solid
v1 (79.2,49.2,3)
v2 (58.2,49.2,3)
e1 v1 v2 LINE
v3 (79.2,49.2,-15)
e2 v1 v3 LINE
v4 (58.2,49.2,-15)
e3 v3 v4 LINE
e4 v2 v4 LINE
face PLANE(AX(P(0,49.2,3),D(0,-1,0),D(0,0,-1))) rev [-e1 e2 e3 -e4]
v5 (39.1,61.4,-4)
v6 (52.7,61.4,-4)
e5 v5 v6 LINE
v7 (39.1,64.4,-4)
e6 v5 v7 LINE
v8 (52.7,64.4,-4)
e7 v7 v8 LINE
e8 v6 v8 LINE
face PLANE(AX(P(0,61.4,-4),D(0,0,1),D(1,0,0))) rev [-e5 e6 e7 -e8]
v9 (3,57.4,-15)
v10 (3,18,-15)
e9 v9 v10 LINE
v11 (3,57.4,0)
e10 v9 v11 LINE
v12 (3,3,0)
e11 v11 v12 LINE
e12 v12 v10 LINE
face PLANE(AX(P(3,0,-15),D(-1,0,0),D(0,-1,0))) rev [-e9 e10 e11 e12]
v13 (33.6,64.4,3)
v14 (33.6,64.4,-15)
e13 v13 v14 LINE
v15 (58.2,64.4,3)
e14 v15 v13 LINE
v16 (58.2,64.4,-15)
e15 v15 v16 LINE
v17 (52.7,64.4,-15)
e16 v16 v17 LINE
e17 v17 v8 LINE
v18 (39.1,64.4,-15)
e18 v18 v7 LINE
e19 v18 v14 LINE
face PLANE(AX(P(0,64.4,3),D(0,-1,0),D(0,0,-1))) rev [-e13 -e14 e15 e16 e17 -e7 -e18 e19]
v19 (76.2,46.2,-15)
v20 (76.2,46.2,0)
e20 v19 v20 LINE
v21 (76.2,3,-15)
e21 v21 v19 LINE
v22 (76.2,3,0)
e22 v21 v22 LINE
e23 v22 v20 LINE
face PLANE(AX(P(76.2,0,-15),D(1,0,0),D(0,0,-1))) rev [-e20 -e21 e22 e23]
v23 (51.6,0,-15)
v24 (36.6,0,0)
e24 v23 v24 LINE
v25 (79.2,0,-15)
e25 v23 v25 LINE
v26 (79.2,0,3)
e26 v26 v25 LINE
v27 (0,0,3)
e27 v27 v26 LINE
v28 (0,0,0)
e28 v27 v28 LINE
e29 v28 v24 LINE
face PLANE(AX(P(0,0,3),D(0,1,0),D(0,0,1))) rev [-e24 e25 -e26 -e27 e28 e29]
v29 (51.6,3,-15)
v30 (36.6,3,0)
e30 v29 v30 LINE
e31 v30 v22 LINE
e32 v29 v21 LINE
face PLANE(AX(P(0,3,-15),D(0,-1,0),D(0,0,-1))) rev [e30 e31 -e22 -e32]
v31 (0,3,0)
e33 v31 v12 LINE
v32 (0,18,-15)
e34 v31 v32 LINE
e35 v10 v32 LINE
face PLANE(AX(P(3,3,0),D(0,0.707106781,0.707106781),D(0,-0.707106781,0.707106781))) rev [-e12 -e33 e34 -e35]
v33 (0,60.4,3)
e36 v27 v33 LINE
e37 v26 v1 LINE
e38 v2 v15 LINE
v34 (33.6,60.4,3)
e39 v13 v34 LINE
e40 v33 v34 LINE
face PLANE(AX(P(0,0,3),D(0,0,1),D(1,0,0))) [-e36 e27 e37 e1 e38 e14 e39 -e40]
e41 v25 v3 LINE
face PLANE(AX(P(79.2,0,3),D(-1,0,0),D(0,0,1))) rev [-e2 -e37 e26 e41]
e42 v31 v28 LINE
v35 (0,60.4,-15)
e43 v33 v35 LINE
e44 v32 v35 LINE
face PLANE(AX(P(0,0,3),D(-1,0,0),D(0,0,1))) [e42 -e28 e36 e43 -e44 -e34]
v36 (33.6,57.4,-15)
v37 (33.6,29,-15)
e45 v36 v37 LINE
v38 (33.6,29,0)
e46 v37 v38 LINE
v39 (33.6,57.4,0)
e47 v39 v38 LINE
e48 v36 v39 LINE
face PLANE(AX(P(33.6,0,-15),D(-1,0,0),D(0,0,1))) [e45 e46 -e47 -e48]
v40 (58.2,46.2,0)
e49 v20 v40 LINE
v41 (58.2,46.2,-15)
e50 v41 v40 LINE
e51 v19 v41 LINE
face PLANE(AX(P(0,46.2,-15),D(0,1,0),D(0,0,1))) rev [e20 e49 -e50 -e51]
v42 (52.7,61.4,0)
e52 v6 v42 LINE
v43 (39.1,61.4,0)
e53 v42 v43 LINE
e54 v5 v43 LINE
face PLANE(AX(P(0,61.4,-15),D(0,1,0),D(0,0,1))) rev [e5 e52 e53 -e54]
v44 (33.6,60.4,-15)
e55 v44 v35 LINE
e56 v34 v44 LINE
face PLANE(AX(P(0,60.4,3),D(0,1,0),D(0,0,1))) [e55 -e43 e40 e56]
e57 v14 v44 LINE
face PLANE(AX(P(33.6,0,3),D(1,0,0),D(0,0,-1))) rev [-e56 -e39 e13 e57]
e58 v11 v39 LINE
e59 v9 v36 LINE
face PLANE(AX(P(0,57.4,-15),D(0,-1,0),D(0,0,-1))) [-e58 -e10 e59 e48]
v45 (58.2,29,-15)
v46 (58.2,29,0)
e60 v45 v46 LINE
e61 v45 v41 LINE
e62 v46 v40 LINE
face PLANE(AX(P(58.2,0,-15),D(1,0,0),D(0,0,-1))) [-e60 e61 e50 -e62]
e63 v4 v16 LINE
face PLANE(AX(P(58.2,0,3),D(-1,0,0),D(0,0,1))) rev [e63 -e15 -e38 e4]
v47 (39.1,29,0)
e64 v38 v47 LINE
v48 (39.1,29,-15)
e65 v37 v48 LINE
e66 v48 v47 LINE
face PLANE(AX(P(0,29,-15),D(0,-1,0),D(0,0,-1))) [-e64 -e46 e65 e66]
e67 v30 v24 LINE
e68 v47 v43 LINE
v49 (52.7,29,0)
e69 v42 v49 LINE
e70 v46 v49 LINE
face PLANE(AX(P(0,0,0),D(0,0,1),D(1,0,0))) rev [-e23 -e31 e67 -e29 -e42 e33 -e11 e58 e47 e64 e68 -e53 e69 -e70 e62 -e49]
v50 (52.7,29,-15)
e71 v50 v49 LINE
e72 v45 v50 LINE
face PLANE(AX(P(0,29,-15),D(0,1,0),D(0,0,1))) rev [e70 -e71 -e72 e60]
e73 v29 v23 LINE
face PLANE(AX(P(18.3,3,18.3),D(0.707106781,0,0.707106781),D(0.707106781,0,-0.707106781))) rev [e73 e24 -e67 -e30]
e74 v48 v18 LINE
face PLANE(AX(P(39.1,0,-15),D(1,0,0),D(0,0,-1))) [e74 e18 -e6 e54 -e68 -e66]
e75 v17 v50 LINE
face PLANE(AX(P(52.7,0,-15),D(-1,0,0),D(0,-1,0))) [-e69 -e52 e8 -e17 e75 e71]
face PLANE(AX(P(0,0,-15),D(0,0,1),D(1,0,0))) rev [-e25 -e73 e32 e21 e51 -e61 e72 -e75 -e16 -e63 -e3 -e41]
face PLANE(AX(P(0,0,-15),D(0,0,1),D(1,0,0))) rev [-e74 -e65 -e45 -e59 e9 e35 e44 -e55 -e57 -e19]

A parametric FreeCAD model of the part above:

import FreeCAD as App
import Part
import Sketcher

V = App.Vector
Q = App.Units.Quantity


def add_polygon(sketch, points):
    """Adds a closed chain of lines whose ends are joined by coincident constraints."""
    first, n = sketch.GeometryCount, len(points)
    for a, b in zip(points, points[1:] + points[:1]):
        sketch.addGeometry(Part.LineSegment(App.Vector(*a, 0), App.Vector(*b, 0)), False)
    for i in range(n):
        sketch.addConstraint(Sketcher.Constraint("Coincident", first + i, 2, first + (i + 1) % n, 1))

doc = App.newDocument("Part")
params = doc.addObject("Spreadsheet::Sheet", "Params")
for row, (alias, value) in enumerate([
    ("sketch1_width", "21 mm"),
    ("sketch1_height", "4 mm"),
    ("sketch1_width2", "79.2 mm"),
    ("sketch1_width3", "24.6 mm"),
    ("sketch1_height2", "60.4 mm"),
    ("pad1_length", "3 mm"),
    ("sketch2_width", "21 mm"),
    ("sketch2_width2", "18 mm"),
    ("sketch2_height", "4 mm"),
    ("sketch2_width3", "33.6 mm"),
    ("sketch2_width4", "79.2 mm"),
    ("pad2_length", "15 mm"),
    ("sketch3_height", "15 mm"),
    ("sketch3_width", "33.6 mm"),
    ("pocket1_length", "3 mm"),
    ("sketch4_width", "15 mm"),
    ("pocket2_length", "3 mm"),
    ("sketch5_height", "11 mm"),
    ("sketch5_width", "13.6 mm"),
    ("pocket3_length", "3 mm"),
    ("sketch6_width", "18 mm"),
    ("pocket4_length", "3 mm"),
], start=1):
    params.set(f"A{row}", alias)
    params.set(f"B{row}", "=" + value)
    params.setAlias(f"B{row}", alias)

body = doc.addObject("PartDesign::Body", "Body")

# Sketch on XY plane
sketch1 = body.newObject("Sketcher::SketchObject", "Sketch")
sketch1.AttachmentSupport = (doc.getObject("XY_Plane"), [""])
sketch1.MapMode = "FlatFace"
add_polygon(sketch1, [(0, 60.4), (0, 0), (79.2, 0), (79.2, 49.2), (58.2, 49.2), (58.2, 64.4), (33.6, 64.4), (33.6, 60.4)])  # lines 0-7
sketch1.addConstraint([
    Sketcher.Constraint("Vertical", 0),
    Sketcher.Constraint("Horizontal", 1),
    Sketcher.Constraint("Vertical", 2),
    Sketcher.Constraint("Horizontal", 3),
    Sketcher.Constraint("Vertical", 4),
    Sketcher.Constraint("Horizontal", 5),
    Sketcher.Constraint("Vertical", 6),
    Sketcher.Constraint("Horizontal", 7),
    Sketcher.Constraint("Coincident", 0, 2, -1, 1),
    Sketcher.Constraint("DistanceX", 3, 2, 3, 1, 21.0),
    Sketcher.Constraint("DistanceY", 6, 2, 6, 1, 4.0),
    Sketcher.Constraint("DistanceX", 1, 1, 1, 2, 79.2),
    Sketcher.Constraint("DistanceX", 5, 2, 5, 1, 24.6),
    Sketcher.Constraint("DistanceY", 0, 2, 0, 1, 60.4),
    Sketcher.Constraint("DistanceY", 2, 1, 2, 2, 49.2),
])
sketch1.setExpression("Constraints[17]", "Params.sketch1_width")
sketch1.setExpression("Constraints[18]", "Params.sketch1_height")
sketch1.setExpression("Constraints[19]", "Params.sketch1_width2")
sketch1.setExpression("Constraints[20]", "Params.sketch1_width3")
sketch1.setExpression("Constraints[21]", "Params.sketch1_height2")
pad1 = body.newObject("PartDesign::Pad", "Pad")
pad1.Profile = sketch1
pad1.setExpression("Length", "Params.pad1_length")

# Sketch on XY plane
sketch2 = body.newObject("Sketcher::SketchObject", "Sketch001")
sketch2.AttachmentSupport = (doc.getObject("XY_Plane"), [""])
sketch2.MapMode = "FlatFace"
add_polygon(sketch2, [(33.6, 60.4), (0, 60.4), (0, 0), (79.2, 0), (79.2, 49.2), (58.2, 49.2), (58.2, 64.4), (33.6, 64.4)])  # lines 0-7
add_polygon(sketch2, [(3, 3), (3, 57.4), (33.6, 57.4), (33.6, 29), (39.1, 29), (39.1, 61.4), (52.7, 61.4), (52.7, 29), (58.2, 29), (58.2, 46.2), (76.2, 46.2), (76.2, 3)])  # lines 8-19
sketch2.addConstraint([
    Sketcher.Constraint("Horizontal", 0),
    Sketcher.Constraint("Vertical", 1),
    Sketcher.Constraint("Horizontal", 2),
    Sketcher.Constraint("Vertical", 3),
    Sketcher.Constraint("Horizontal", 4),
    Sketcher.Constraint("Vertical", 5),
    Sketcher.Constraint("Horizontal", 6),
    Sketcher.Constraint("Vertical", 7),
    Sketcher.Constraint("Vertical", 8),
    Sketcher.Constraint("Horizontal", 9),
    Sketcher.Constraint("Vertical", 10),
    Sketcher.Constraint("Horizontal", 11),
    Sketcher.Constraint("Vertical", 12),
    Sketcher.Constraint("Horizontal", 13),
    Sketcher.Constraint("Vertical", 14),
    Sketcher.Constraint("Horizontal", 15),
    Sketcher.Constraint("Vertical", 16),
    Sketcher.Constraint("Horizontal", 17),
    Sketcher.Constraint("Vertical", 18),
    Sketcher.Constraint("Horizontal", 19),
    Sketcher.Constraint("Coincident", 1, 2, -1, 1),
    Sketcher.Constraint("Horizontal", 11, 2, 14, 2),
    Sketcher.Constraint("Vertical", 7, 2, 9, 2),
    Sketcher.Constraint("Vertical", 5, 2, 15, 2),
    Sketcher.Constraint("Equal", 11, 15),
    Sketcher.Constraint("DistanceX", 4, 2, 4, 1, 21.0),
    Sketcher.Constraint("DistanceX", 17, 1, 17, 2, 18.0),
    Sketcher.Constraint("DistanceY", 7, 2, 7, 1, 4.0),
    Sketcher.Constraint("DistanceX", 0, 2, 0, 1, 33.6),
    Sketcher.Constraint("DistanceX", 2, 1, 2, 2, 79.2),
    Sketcher.Constraint("DistanceX", 9, 1, 9, 2, 30.6),
    Sketcher.Constraint("DistanceX", 11, 1, 11, 2, 5.5),
    Sketcher.Constraint("DistanceY", 1, 2, 1, 1, 60.4),
    Sketcher.Constraint("DistanceY", 3, 1, 3, 2, 49.2),
    Sketcher.Constraint("DistanceY", 8, 1, 8, 2, 54.4),
    Sketcher.Constraint("DistanceY", 10, 2, 10, 1, 28.4),
    Sketcher.Constraint("DistanceY", 12, 1, 12, 2, 32.4),
    Sketcher.Constraint("DistanceY", 16, 1, 16, 2, 17.2),
    Sketcher.Constraint("DistanceY", -1, 1, 10, 2, 29.0),
])
sketch2.setExpression("Constraints[45]", "Params.sketch2_width")
sketch2.setExpression("Constraints[46]", "Params.sketch2_width2")
sketch2.setExpression("Constraints[47]", "Params.sketch2_height")
sketch2.setExpression("Constraints[48]", "Params.sketch2_width3")
sketch2.setExpression("Constraints[49]", "Params.sketch2_width4")
pad2 = body.newObject("PartDesign::Pad", "Pad001")
pad2.Profile = sketch2
pad2.setExpression("Length", "Params.pad2_length")
pad2.Reversed = True

# Sketch on XZ plane
sketch3 = body.newObject("Sketcher::SketchObject", "Sketch002")
sketch3.AttachmentSupport = (doc.getObject("XZ_Plane"), [""])
sketch3.MapMode = "FlatFace"
add_polygon(sketch3, [(0, 0), (0, -15), (33.6, -15), (18.6, 0)])  # lines 0-3
sketch3.addConstraint([
    Sketcher.Constraint("Vertical", 0),
    Sketcher.Constraint("Horizontal", 1),
    Sketcher.Constraint("Horizontal", 3),
    Sketcher.Constraint("Coincident", 3, 2, -1, 1),
    Sketcher.Constraint("DistanceY", 0, 2, 0, 1, 15.0),
    Sketcher.Constraint("Angle", 2, Q("135 deg")),
    Sketcher.Constraint("DistanceX", 1, 1, 1, 2, 33.6),
])
sketch3.setExpression("Constraints[8]", "Params.sketch3_height")
sketch3.setExpression("Constraints[10]", "Params.sketch3_width")
pocket1 = body.newObject("PartDesign::Pocket", "Pocket")
pocket1.Profile = sketch3
pocket1.setExpression("Length", "Params.pocket1_length")

# Sketch on YZ plane
sketch4 = body.newObject("Sketcher::SketchObject", "Sketch003")
sketch4.AttachmentSupport = (doc.getObject("YZ_Plane"), [""])
sketch4.MapMode = "FlatFace"
add_polygon(sketch4, [(3, 0), (18, -15), (3, -15)])  # lines 0-2
sketch4.addConstraint([
    Sketcher.Constraint("Horizontal", 1),
    Sketcher.Constraint("Vertical", 2),
    Sketcher.Constraint("PointOnObject", 2, 2, -1),
    Sketcher.Constraint("Equal", 1, 2),
    Sketcher.Constraint("DistanceX", 1, 2, 1, 1, 15.0),
    Sketcher.Constraint("DistanceX", -1, 1, 0, 2, 18.0),
])
sketch4.setExpression("Constraints[7]", "Params.sketch4_width")
pocket2 = body.newObject("PartDesign::Pocket", "Pocket001")
pocket2.Profile = sketch4
pocket2.setExpression("Length", "Params.pocket2_length")
pocket2.Reversed = True

# Sketch on XZ plane
sketch5 = body.newObject("Sketcher::SketchObject", "Sketch004")
sketch5.AttachmentSupport = (doc.getObject("XZ_Plane"), [""])
sketch5.MapMode = "FlatFace"
sketch5.AttachmentOffset = App.Placement(V(0, 0, -64.4), App.Rotation())
add_polygon(sketch5, [(39.1, -15), (39.1, -4), (52.7, -4), (52.7, -15)])  # lines 0-3
sketch5.addConstraint([
    Sketcher.Constraint("Vertical", 0),
    Sketcher.Constraint("Horizontal", 1),
    Sketcher.Constraint("Vertical", 2),
    Sketcher.Constraint("Horizontal", 3),
    Sketcher.Constraint("DistanceY", 0, 1, 0, 2, 11.0),
    Sketcher.Constraint("DistanceX", 1, 1, 1, 2, 13.6),
    Sketcher.Constraint("DistanceY", 0, 2, -1, 1, 4.0),
    Sketcher.Constraint("DistanceX", -1, 1, 0, 2, 39.1),
])
sketch5.setExpression("Constraints[8]", "Params.sketch5_height")
sketch5.setExpression("Constraints[9]", "Params.sketch5_width")
pocket3 = body.newObject("PartDesign::Pocket", "Pocket002")
pocket3.Profile = sketch5
pocket3.setExpression("Length", "Params.pocket3_length")
pocket3.Reversed = True

# Sketch on XZ plane
sketch6 = body.newObject("Sketcher::SketchObject", "Sketch005")
sketch6.AttachmentSupport = (doc.getObject("XZ_Plane"), [""])
sketch6.MapMode = "FlatFace"
add_polygon(sketch6, [(33.6, -15), (51.6, -15), (36.6, 0), (18.6, 0)])  # lines 0-3
sketch6.addConstraint([
    Sketcher.Constraint("Horizontal", 0),
    Sketcher.Constraint("Horizontal", 2),
    Sketcher.Constraint("PointOnObject", 1, 2, -1),
    Sketcher.Constraint("Parallel", 1, 3),
    Sketcher.Constraint("DistanceX", 0, 1, 0, 2, 18.0),
    Sketcher.Constraint("Angle", 1, Q("135 deg")),
    Sketcher.Constraint("DistanceY", 0, 2, -1, 1, 15.0),
    Sketcher.Constraint("DistanceX", -1, 1, 0, 2, 51.6),
])
sketch6.setExpression("Constraints[8]", "Params.sketch6_width")
pocket4 = body.newObject("PartDesign::Pocket", "Pocket003")
pocket4.Profile = sketch6
pocket4.setExpression("Length", "Params.pocket4_length")

doc.recompute()
